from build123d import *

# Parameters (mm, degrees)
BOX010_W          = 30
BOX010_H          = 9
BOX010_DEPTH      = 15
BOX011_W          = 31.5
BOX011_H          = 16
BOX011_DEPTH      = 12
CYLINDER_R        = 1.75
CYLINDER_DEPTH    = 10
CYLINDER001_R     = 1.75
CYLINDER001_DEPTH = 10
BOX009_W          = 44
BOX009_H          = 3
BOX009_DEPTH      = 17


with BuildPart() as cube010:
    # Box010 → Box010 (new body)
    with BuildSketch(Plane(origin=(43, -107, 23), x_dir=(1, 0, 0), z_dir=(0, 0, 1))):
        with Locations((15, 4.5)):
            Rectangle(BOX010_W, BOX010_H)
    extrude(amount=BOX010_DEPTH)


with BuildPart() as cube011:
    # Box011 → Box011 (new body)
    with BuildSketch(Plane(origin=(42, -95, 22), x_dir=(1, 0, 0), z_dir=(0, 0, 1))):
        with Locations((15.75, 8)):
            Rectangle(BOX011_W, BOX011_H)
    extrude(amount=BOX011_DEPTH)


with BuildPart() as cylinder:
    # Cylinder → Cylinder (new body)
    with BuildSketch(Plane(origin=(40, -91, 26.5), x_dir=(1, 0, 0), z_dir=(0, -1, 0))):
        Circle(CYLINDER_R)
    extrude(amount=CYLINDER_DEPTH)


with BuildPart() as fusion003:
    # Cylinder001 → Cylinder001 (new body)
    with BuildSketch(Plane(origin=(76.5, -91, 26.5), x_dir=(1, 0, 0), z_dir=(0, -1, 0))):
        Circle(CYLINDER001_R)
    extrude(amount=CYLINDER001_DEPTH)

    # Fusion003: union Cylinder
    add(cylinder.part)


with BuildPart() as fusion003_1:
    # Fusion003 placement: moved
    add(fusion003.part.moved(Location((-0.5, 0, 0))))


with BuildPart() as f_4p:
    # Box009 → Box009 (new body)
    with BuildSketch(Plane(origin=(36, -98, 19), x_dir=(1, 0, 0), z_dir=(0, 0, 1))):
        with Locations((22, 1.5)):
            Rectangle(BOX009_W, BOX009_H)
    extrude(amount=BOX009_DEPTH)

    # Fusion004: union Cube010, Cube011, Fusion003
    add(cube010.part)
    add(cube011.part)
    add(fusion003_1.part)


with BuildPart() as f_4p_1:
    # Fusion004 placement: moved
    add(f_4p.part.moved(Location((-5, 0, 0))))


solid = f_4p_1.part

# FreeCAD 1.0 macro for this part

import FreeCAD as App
import Part
import Sketcher

doc = App.newDocument("Part")
body = doc.addObject("PartDesign::Body", "Body")

# Sketch on XY plane
sketch1 = doc.addObject("Sketcher::SketchObject", "Sketch")
body.addObject(sketch1)
sketch1.AttachmentSupport = (doc.XY_Plane, [""])
sketch1.MapMode = "FlatFace"
sketch1.AttachmentOffset = App.Placement(App.Vector(0, 0, 23), App.Rotation())
sketch1.addGeometry(Part.LineSegment(App.Vector(43, -98, 0), App.Vector(43, -107, 0)), False)
sketch1.addGeometry(Part.LineSegment(App.Vector(43, -107, 0), App.Vector(73, -107, 0)), False)
sketch1.addGeometry(Part.LineSegment(App.Vector(73, -107, 0), App.Vector(73, -98, 0)), False)
sketch1.addGeometry(Part.LineSegment(App.Vector(73, -98, 0), App.Vector(43, -98, 0)), False)
sketch1.addConstraint(Sketcher.Constraint("Coincident", 0, 2, 1, 1))
sketch1.addConstraint(Sketcher.Constraint("Coincident", 1, 2, 2, 1))
sketch1.addConstraint(Sketcher.Constraint("Coincident", 2, 2, 3, 1))
sketch1.addConstraint(Sketcher.Constraint("Coincident", 3, 2, 0, 1))
sketch1.addConstraint(Sketcher.Constraint("Vertical", 0))
sketch1.addConstraint(Sketcher.Constraint("Horizontal", 1))
sketch1.addConstraint(Sketcher.Constraint("Vertical", 2))
sketch1.addConstraint(Sketcher.Constraint("Horizontal", 3))
sketch1.addConstraint(Sketcher.Constraint("DistanceX", 1, 1, 1, 2, 30.0))
sketch1.addConstraint(Sketcher.Constraint("DistanceY", 0, 2, 0, 1, 9.0))
sketch1.addConstraint(Sketcher.Constraint("DistanceX", -1, 1, 0, 2, 43.0))
sketch1.addConstraint(Sketcher.Constraint("DistanceY", 0, 2, -1, 1, 107.0))
pad1 = doc.addObject("PartDesign::Pad", "Pad")
body.addObject(pad1)
pad1.Profile = sketch1
pad1.Length = 15
body2 = doc.addObject("PartDesign::Body", "Body001")

# Sketch on XY plane
sketch2 = doc.addObject("Sketcher::SketchObject", "Sketch001")
body2.addObject(sketch2)
sketch2.AttachmentSupport = (doc.getObject("XY_Plane001"), [""])
sketch2.MapMode = "FlatFace"
sketch2.AttachmentOffset = App.Placement(App.Vector(0, 0, 22), App.Rotation())
sketch2.addGeometry(Part.LineSegment(App.Vector(42, -79, 0), App.Vector(42, -95, 0)), False)
sketch2.addGeometry(Part.LineSegment(App.Vector(42, -95, 0), App.Vector(74, -95, 0)), False)
sketch2.addGeometry(Part.LineSegment(App.Vector(74, -95, 0), App.Vector(74, -79, 0)), False)
sketch2.addGeometry(Part.LineSegment(App.Vector(74, -79, 0), App.Vector(42, -79, 0)), False)
sketch2.addConstraint(Sketcher.Constraint("Coincident", 0, 2, 1, 1))
sketch2.addConstraint(Sketcher.Constraint("Coincident", 1, 2, 2, 1))
sketch2.addConstraint(Sketcher.Constraint("Coincident", 2, 2, 3, 1))
sketch2.addConstraint(Sketcher.Constraint("Coincident", 3, 2, 0, 1))
sketch2.addConstraint(Sketcher.Constraint("Vertical", 0))
sketch2.addConstraint(Sketcher.Constraint("Horizontal", 1))
sketch2.addConstraint(Sketcher.Constraint("Vertical", 2))
sketch2.addConstraint(Sketcher.Constraint("Horizontal", 3))
sketch2.addConstraint(Sketcher.Constraint("DistanceY", 0, 2, 0, 1, 16.0))
sketch2.addConstraint(Sketcher.Constraint("DistanceX", 1, 1, 1, 2, 31.5))
sketch2.addConstraint(Sketcher.Constraint("DistanceX", -1, 1, 0, 2, 42.0))
sketch2.addConstraint(Sketcher.Constraint("DistanceY", 0, 2, -1, 1, 95.0))
pad2 = doc.addObject("PartDesign::Pad", "Pad001")
body2.addObject(pad2)
pad2.Profile = sketch2
pad2.Length = 12
body3 = doc.addObject("PartDesign::Body", "Body002")

# Sketch on XZ plane
sketch3 = doc.addObject("Sketcher::SketchObject", "Sketch002")
body3.addObject(sketch3)
sketch3.AttachmentSupport = (doc.getObject("XZ_Plane002"), [""])
sketch3.MapMode = "FlatFace"
sketch3.AttachmentOffset = App.Placement(App.Vector(0, 0, 91), App.Rotation())
sketch3.addGeometry(Part.Circle(App.Vector(40, 26.5, 0), App.Vector(0, 0, 1), 1.8), False)
sketch3.addConstraint(Sketcher.Constraint("Diameter", 0, 3.5))
sketch3.addConstraint(Sketcher.Constraint("DistanceX", -1, 1, 0, 3, 40.0))
sketch3.addConstraint(Sketcher.Constraint("DistanceY", -1, 1, 0, 3, 26.5))
pad3 = doc.addObject("PartDesign::Pad", "Pad002")
body3.addObject(pad3)
pad3.Profile = sketch3
pad3.Length = 10
body4 = doc.addObject("PartDesign::Body", "Body003")
body4.AllowCompound = True

# Sketch on XZ plane
sketch4 = doc.addObject("Sketcher::SketchObject", "Sketch003")
body4.addObject(sketch4)
sketch4.AttachmentSupport = (doc.getObject("XZ_Plane003"), [""])
sketch4.MapMode = "FlatFace"
sketch4.AttachmentOffset = App.Placement(App.Vector(0, 0, 91), App.Rotation())
sketch4.addGeometry(Part.Circle(App.Vector(76.5, 26.5, 0), App.Vector(0, 0, 1), 1.8), False)
sketch4.addConstraint(Sketcher.Constraint("Diameter", 0, 3.5))
sketch4.addConstraint(Sketcher.Constraint("DistanceX", -1, 1, 0, 3, 76.5))
sketch4.addConstraint(Sketcher.Constraint("DistanceY", -1, 1, 0, 3, 26.5))
pad4 = doc.addObject("PartDesign::Pad", "Pad003")
body4.addObject(pad4)
pad4.Profile = sketch4
pad4.Length = 10
doc.recompute()

boolean = doc.addObject("PartDesign::Boolean", "Boolean")
body4.addObject(boolean)
boolean.Type = "Fuse"
boolean.addObjects([body3])
body5 = doc.addObject("PartDesign::Body", "Body004")
body5.AllowCompound = True
doc.recompute()

body4.Placement = App.Placement(App.Vector(-0.5, 0, 0), App.Rotation(App.Vector(0, 0, 1), 0))
boolean2 = doc.addObject("PartDesign::Boolean", "Boolean001")
body5.addObject(boolean2)
boolean2.Type = "Fuse"
boolean2.addObjects([body4])
body6 = doc.addObject("PartDesign::Body", "Body005")

# Sketch on XY plane
sketch5 = doc.addObject("Sketcher::SketchObject", "Sketch004")
body6.addObject(sketch5)
sketch5.AttachmentSupport = (doc.getObject("XY_Plane005"), [""])
sketch5.MapMode = "FlatFace"
sketch5.AttachmentOffset = App.Placement(App.Vector(0, 0, 19), App.Rotation())
sketch5.addGeometry(Part.LineSegment(App.Vector(36, -95, 0), App.Vector(36, -98, 0)), False)
sketch5.addGeometry(Part.LineSegment(App.Vector(36, -98, 0), App.Vector(80, -98, 0)), False)
sketch5.addGeometry(Part.LineSegment(App.Vector(80, -98, 0), App.Vector(80, -95, 0)), False)
sketch5.addGeometry(Part.LineSegment(App.Vector(80, -95, 0), App.Vector(36, -95, 0)), False)
sketch5.addConstraint(Sketcher.Constraint("Coincident", 0, 2, 1, 1))
sketch5.addConstraint(Sketcher.Constraint("Coincident", 1, 2, 2, 1))
sketch5.addConstraint(Sketcher.Constraint("Coincident", 2, 2, 3, 1))
sketch5.addConstraint(Sketcher.Constraint("Coincident", 3, 2, 0, 1))
sketch5.addConstraint(Sketcher.Constraint("Vertical", 0))
sketch5.addConstraint(Sketcher.Constraint("Horizontal", 1))
sketch5.addConstraint(Sketcher.Constraint("Vertical", 2))
sketch5.addConstraint(Sketcher.Constraint("Horizontal", 3))
sketch5.addConstraint(Sketcher.Constraint("DistanceX", 1, 1, 1, 2, 44.0))
sketch5.addConstraint(Sketcher.Constraint("DistanceY", 0, 2, 0, 1, 3.0))
sketch5.addConstraint(Sketcher.Constraint("DistanceX", -1, 1, 0, 2, 36.0))
sketch5.addConstraint(Sketcher.Constraint("DistanceY", 0, 2, -1, 1, 98.0))
pad5 = doc.addObject("PartDesign::Pad", "Pad004")
body6.addObject(pad5)
pad5.Profile = sketch5
pad5.Length = 17
doc.recompute()

boolean3 = doc.addObject("PartDesign::Boolean", "Boolean002")
body6.addObject(boolean3)
boolean3.Type = "Fuse"
boolean3.addObjects([body])
doc.recompute()

boolean4 = doc.addObject("PartDesign::Boolean", "Boolean003")
body6.addObject(boolean4)
boolean4.Type = "Fuse"
boolean4.addObjects([body2])
doc.recompute()

boolean5 = doc.addObject("PartDesign::Boolean", "Boolean004")
body6.addObject(boolean5)
boolean5.Type = "Fuse"
boolean5.addObjects([body5])
body7 = doc.addObject("PartDesign::Body", "Body006")
doc.recompute()

body6.Placement = App.Placement(App.Vector(-5, 0, 0), App.Rotation(App.Vector(0, 0, 1), 0))
boolean6 = doc.addObject("PartDesign::Boolean", "Boolean005")
body7.addObject(boolean6)
boolean6.Type = "Fuse"
boolean6.addObjects([body6])

doc.recompute()
